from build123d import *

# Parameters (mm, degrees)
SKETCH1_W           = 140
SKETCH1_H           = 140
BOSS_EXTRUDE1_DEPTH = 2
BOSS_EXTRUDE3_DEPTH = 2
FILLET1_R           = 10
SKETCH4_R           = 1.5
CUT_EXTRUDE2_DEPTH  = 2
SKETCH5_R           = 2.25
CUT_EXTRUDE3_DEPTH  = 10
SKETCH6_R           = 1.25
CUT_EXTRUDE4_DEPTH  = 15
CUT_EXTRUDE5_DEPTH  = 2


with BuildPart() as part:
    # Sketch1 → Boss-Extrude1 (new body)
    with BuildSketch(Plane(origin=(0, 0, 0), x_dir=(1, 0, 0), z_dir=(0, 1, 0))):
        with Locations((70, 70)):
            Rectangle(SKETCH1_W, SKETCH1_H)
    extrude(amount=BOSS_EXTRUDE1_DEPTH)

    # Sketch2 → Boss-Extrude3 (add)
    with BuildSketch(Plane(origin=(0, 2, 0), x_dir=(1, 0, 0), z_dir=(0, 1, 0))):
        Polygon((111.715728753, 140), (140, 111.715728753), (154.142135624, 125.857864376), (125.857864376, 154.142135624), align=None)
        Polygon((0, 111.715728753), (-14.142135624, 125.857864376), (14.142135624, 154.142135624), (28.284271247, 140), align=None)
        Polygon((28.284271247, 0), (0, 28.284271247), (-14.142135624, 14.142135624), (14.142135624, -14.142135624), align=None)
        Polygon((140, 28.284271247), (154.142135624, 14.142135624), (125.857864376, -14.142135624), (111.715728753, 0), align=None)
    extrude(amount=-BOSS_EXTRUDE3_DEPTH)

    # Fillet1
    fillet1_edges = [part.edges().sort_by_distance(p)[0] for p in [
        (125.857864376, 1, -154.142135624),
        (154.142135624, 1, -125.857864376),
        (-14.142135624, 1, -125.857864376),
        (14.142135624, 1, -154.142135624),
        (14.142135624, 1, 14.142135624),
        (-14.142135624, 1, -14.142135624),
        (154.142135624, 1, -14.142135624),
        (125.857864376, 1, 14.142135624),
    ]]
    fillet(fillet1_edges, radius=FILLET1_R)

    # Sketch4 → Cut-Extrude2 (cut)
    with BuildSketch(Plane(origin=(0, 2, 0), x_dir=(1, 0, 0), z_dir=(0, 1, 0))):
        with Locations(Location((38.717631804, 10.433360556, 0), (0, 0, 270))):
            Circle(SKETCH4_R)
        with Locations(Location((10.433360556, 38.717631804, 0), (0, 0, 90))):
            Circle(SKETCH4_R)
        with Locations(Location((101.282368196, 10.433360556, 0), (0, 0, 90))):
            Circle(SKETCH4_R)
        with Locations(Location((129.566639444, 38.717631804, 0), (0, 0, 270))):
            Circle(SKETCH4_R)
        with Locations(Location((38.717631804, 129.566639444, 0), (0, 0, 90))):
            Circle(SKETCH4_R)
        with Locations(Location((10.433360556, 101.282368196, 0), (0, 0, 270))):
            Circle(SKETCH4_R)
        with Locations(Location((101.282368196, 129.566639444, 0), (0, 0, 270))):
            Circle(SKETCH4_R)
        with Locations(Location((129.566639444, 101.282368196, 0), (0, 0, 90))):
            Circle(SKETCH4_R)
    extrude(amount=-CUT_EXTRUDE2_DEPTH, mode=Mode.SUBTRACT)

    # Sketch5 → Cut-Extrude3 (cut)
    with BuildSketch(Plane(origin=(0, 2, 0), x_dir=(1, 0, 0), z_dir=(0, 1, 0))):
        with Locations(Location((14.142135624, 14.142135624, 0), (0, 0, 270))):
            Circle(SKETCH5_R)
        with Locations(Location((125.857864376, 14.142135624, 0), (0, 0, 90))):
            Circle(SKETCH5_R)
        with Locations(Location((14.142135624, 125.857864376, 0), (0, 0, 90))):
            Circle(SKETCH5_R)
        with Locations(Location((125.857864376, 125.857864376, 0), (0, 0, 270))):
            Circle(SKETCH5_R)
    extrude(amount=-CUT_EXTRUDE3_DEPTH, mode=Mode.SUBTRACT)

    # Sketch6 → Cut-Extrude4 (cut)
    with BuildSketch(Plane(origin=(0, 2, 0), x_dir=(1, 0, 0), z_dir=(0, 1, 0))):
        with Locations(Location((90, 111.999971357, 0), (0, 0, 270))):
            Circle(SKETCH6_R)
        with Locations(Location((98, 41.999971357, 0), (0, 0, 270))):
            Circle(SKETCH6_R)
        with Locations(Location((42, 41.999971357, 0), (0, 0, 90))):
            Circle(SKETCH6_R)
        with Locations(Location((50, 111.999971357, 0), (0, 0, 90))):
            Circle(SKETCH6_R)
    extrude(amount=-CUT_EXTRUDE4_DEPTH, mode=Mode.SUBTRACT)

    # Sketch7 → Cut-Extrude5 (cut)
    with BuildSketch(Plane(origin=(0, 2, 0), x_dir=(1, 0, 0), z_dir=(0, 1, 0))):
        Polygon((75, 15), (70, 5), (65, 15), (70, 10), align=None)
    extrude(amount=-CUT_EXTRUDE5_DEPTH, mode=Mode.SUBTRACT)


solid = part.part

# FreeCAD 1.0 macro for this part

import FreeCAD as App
import Part
import Sketcher
Q = App.Units.Quantity


def edges_at(feature, points):
    """Names of the edges that pass closest to the given points."""
    edges = feature.Shape.Edges
    near = lambda p: min(range(len(edges)), key=lambda i: edges[i].distToShape(Part.Vertex(*p))[0])
    return sorted({f"Edge{near(p) + 1}" for p in points})


def add_polygon(sketch, points):
    """Adds a closed chain of lines whose ends are joined by coincident constraints."""
    first, n = sketch.GeometryCount, len(points)
    for a, b in zip(points, points[1:] + points[:1]):
        sketch.addGeometry(Part.LineSegment(App.Vector(*a, 0), App.Vector(*b, 0)), False)
    for i in range(n):
        sketch.addConstraint(Sketcher.Constraint("Coincident", first + i, 2, first + (i + 1) % n, 1))

doc = App.newDocument("Part")
body = doc.addObject("PartDesign::Body", "Body")

sketch1 = doc.addObject("Sketcher::SketchObject", "Sketch")
body.addObject(sketch1)
sketch1.AttachmentSupport = (doc.XZ_Plane, [""])
sketch1.MapMode = "FlatFace"
add_polygon(sketch1, [(0, -140), (0, 0), (140, 0), (140, -140)])
sketch1.addConstraint(Sketcher.Constraint("Vertical", 0))
sketch1.addConstraint(Sketcher.Constraint("Horizontal", 1))
sketch1.addConstraint(Sketcher.Constraint("Vertical", 2))
sketch1.addConstraint(Sketcher.Constraint("Horizontal", 3))
sketch1.addConstraint(Sketcher.Constraint("Coincident", 0, 2, -1, 1))
sketch1.addConstraint(Sketcher.Constraint("Equal", 3, 0))
sketch1.addConstraint(Sketcher.Constraint("DistanceX", 1, 1, 1, 2, Q("140 mm")))
pad1 = doc.addObject("PartDesign::Pad", "Pad")
body.addObject(pad1)
pad1.Profile = sketch1
pad1.Length = 2
pad1.Reversed = True

sketch2 = doc.addObject("Sketcher::SketchObject", "Sketch001")
body.addObject(sketch2)
sketch2.AttachmentSupport = (doc.XZ_Plane, [""])
sketch2.MapMode = "FlatFace"
sketch2.AttachmentOffset = App.Placement(App.Vector(0, 0, -2), App.Rotation())
add_polygon(sketch2, [(112, -140), (140, -112), (154, -126), (126, -154)])
add_polygon(sketch2, [(-14, -126), (0, -112), (28, -140), (14, -154)])
add_polygon(sketch2, [(28, 0), (0, -28), (-14, -14), (14, 14)])
add_polygon(sketch2, [(154, -14), (140, -28), (112, 0), (126, 14)])
sketch2.addConstraint(Sketcher.Constraint("Symmetric", 9, 2, 10, 2, -1, 1))
sketch2.addConstraint(Sketcher.Constraint("PointOnObject", 4, 2, -2))
sketch2.addConstraint(Sketcher.Constraint("PointOnObject", 8, 2, -2))
sketch2.addConstraint(Sketcher.Constraint("PointOnObject", 11, 2, -1))
sketch2.addConstraint(Sketcher.Constraint("PointOnObject", 13, 2, -1))
sketch2.addConstraint(Sketcher.Constraint("Perpendicular", 0, 1))
sketch2.addConstraint(Sketcher.Constraint("Perpendicular", 1, 2))
sketch2.addConstraint(Sketcher.Constraint("Perpendicular", 2, 3))
sketch2.addConstraint(Sketcher.Constraint("Perpendicular", 3, 4))
sketch2.addConstraint(Sketcher.Constraint("Perpendicular", 4, 5))
sketch2.addConstraint(Sketcher.Constraint("Perpendicular", 5, 6))
sketch2.addConstraint(Sketcher.Constraint("Perpendicular", 6, 7))
sketch2.addConstraint(Sketcher.Constraint("Perpendicular", 7, 8))
sketch2.addConstraint(Sketcher.Constraint("Perpendicular", 8, 9))
sketch2.addConstraint(Sketcher.Constraint("Perpendicular", 9, 10))
sketch2.addConstraint(Sketcher.Constraint("Perpendicular", 10, 11))
sketch2.addConstraint(Sketcher.Constraint("Perpendicular", 11, 12))
sketch2.addConstraint(Sketcher.Constraint("Perpendicular", 12, 13))
sketch2.addConstraint(Sketcher.Constraint("Perpendicular", 13, 14))
sketch2.addConstraint(Sketcher.Constraint("Perpendicular", 14, 15))
sketch2.addConstraint(Sketcher.Constraint("Horizontal", 0, 2, 4, 2))
sketch2.addConstraint(Sketcher.Constraint("Horizontal", 3, 2, 5, 2))
sketch2.addConstraint(Sketcher.Constraint("Horizontal", 2, 2, 6, 2))
sketch2.addConstraint(Sketcher.Constraint("Horizontal", 8, 2, 12, 2))
sketch2.addConstraint(Sketcher.Constraint("Horizontal", 10, 2, 14, 2))
sketch2.addConstraint(Sketcher.Constraint("Vertical", 7, 2, 9, 2))
sketch2.addConstraint(Sketcher.Constraint("Vertical", 6, 2, 10, 2))
sketch2.addConstraint(Sketcher.Constraint("Vertical", 0, 2, 12, 2))
sketch2.addConstraint(Sketcher.Constraint("Distance", 0, Q("40 mm")))
sketch2.addConstraint(Sketcher.Constraint("DistanceX", -1, 1, 0, 2, Q("140 mm")))
sketch2.addConstraint(Sketcher.Constraint("DistanceY", 3, 2, -1, 1, Q("140 mm")))
pad2 = doc.addObject("PartDesign::Pad", "Pad001")
body.addObject(pad2)
pad2.Profile = sketch2
pad2.Length = 2
doc.recompute()

fillet = doc.addObject("PartDesign::Fillet", "Fillet")
body.addObject(fillet)
fillet.Base = (pad2, edges_at(pad2, [
    (125.858, 1, -154.142),
    (154.142, 1, -125.858),
    (-14.142, 1, -125.858),
    (14.142, 1, -154.142),
    (14.142, 1, 14.142),
    (-14.142, 1, -14.142),
    (154.142, 1, -14.142),
    (125.858, 1, 14.142),
]))
fillet.Radius = 10

sketch3 = doc.addObject("Sketcher::SketchObject", "Sketch002")
body.addObject(sketch3)
sketch3.AttachmentSupport = (doc.XZ_Plane, [""])
sketch3.MapMode = "FlatFace"
sketch3.AttachmentOffset = App.Placement(App.Vector(0, 0, -2), App.Rotation())
sketch3.addGeometry(Part.Circle(App.Vector(38.7, -10.4, 0), App.Vector(0, 0, 1), 1.5), False)
sketch3.addGeometry(Part.Circle(App.Vector(10.4, -38.7, 0), App.Vector(0, 0, 1), 1.5), False)
sketch3.addGeometry(Part.Circle(App.Vector(101.3, -10.4, 0), App.Vector(0, 0, 1), 1.5), False)
sketch3.addGeometry(Part.Circle(App.Vector(129.6, -38.7, 0), App.Vector(0, 0, 1), 1.5), False)
sketch3.addGeometry(Part.Circle(App.Vector(38.7, -129.6, 0), App.Vector(0, 0, 1), 1.5), False)
sketch3.addGeometry(Part.Circle(App.Vector(10.4, -101.3, 0), App.Vector(0, 0, 1), 1.5), False)
sketch3.addGeometry(Part.Circle(App.Vector(101.3, -129.6, 0), App.Vector(0, 0, 1), 1.5), False)
sketch3.addGeometry(Part.Circle(App.Vector(129.6, -101.3, 0), App.Vector(0, 0, 1), 1.5), False)
sketch3.addConstraint(Sketcher.Constraint("Equal", 0, 1))
sketch3.addConstraint(Sketcher.Constraint("Equal", 1, 2))
sketch3.addConstraint(Sketcher.Constraint("Equal", 2, 3))
sketch3.addConstraint(Sketcher.Constraint("Equal", 3, 4))
sketch3.addConstraint(Sketcher.Constraint("Equal", 4, 5))
sketch3.addConstraint(Sketcher.Constraint("Equal", 5, 6))
sketch3.addConstraint(Sketcher.Constraint("Equal", 6, 7))
sketch3.addConstraint(Sketcher.Constraint("Horizontal", 0, 3, 2, 3))
sketch3.addConstraint(Sketcher.Constraint("Horizontal", 1, 3, 3, 3))
sketch3.addConstraint(Sketcher.Constraint("Horizontal", 4, 3, 6, 3))
sketch3.addConstraint(Sketcher.Constraint("Horizontal", 5, 3, 7, 3))
sketch3.addConstraint(Sketcher.Constraint("Vertical", 0, 3, 4, 3))
sketch3.addConstraint(Sketcher.Constraint("Vertical", 1, 3, 5, 3))
sketch3.addConstraint(Sketcher.Constraint("Vertical", 2, 3, 6, 3))
sketch3.addConstraint(Sketcher.Constraint("Vertical", 3, 3, 7, 3))
sketch3.addConstraint(Sketcher.Constraint("Diameter", 0, Q("3 mm")))
sketch3.addConstraint(Sketcher.Constraint("DistanceX", -1, 1, 0, 3, Q("38.717632 mm")))
sketch3.addConstraint(Sketcher.Constraint("DistanceY", 0, 3, -1, 1, Q("10.433361 mm")))
sketch3.addConstraint(Sketcher.Constraint("DistanceX", -1, 1, 1, 3, Q("10.433361 mm")))
sketch3.addConstraint(Sketcher.Constraint("DistanceY", 1, 3, -1, 1, Q("38.717632 mm")))
sketch3.addConstraint(Sketcher.Constraint("DistanceX", -1, 1, 2, 3, Q("101.282368 mm")))
sketch3.addConstraint(Sketcher.Constraint("DistanceX", -1, 1, 3, 3, Q("129.566639 mm")))
sketch3.addConstraint(Sketcher.Constraint("DistanceY", 4, 3, -1, 1, Q("129.566639 mm")))
sketch3.addConstraint(Sketcher.Constraint("DistanceY", 5, 3, -1, 1, Q("101.282368 mm")))
pocket1 = doc.addObject("PartDesign::Pocket", "Pocket")
body.addObject(pocket1)
pocket1.Profile = sketch3
pocket1.Length = 2
pocket1.Reversed = True

sketch4 = doc.addObject("Sketcher::SketchObject", "Sketch003")
body.addObject(sketch4)
sketch4.AttachmentSupport = (doc.XZ_Plane, [""])
sketch4.MapMode = "FlatFace"
sketch4.AttachmentOffset = App.Placement(App.Vector(0, 0, -2), App.Rotation())
sketch4.addGeometry(Part.Circle(App.Vector(14.1, -14.1, 0), App.Vector(0, 0, 1), 2.2), False)
sketch4.addGeometry(Part.Circle(App.Vector(125.9, -14.1, 0), App.Vector(0, 0, 1), 2.2), False)
sketch4.addGeometry(Part.Circle(App.Vector(14.1, -125.9, 0), App.Vector(0, 0, 1), 2.2), False)
sketch4.addGeometry(Part.Circle(App.Vector(125.9, -125.9, 0), App.Vector(0, 0, 1), 2.2), False)
sketch4.addConstraint(Sketcher.Constraint("Equal", 0, 1))
sketch4.addConstraint(Sketcher.Constraint("Equal", 1, 2))
sketch4.addConstraint(Sketcher.Constraint("Equal", 2, 3))
sketch4.addConstraint(Sketcher.Constraint("Horizontal", 0, 3, 1, 3))
sketch4.addConstraint(Sketcher.Constraint("Horizontal", 2, 3, 3, 3))
sketch4.addConstraint(Sketcher.Constraint("Vertical", 0, 3, 2, 3))
sketch4.addConstraint(Sketcher.Constraint("Vertical", 1, 3, 3, 3))
sketch4.addConstraint(Sketcher.Constraint("Diameter", 0, Q("4.5 mm")))
sketch4.addConstraint(Sketcher.Constraint("DistanceX", 0, 3, 1, 3, Q("111.715729 mm")))
sketch4.addConstraint(Sketcher.Constraint("DistanceY", 2, 3, 0, 3, Q("111.715729 mm")))
sketch4.addConstraint(Sketcher.Constraint("DistanceX", -1, 1, 0, 3, Q("14.142136 mm")))
sketch4.addConstraint(Sketcher.Constraint("DistanceY", 0, 3, -1, 1, Q("14.142136 mm")))
pocket2 = doc.addObject("PartDesign::Pocket", "Pocket001")
body.addObject(pocket2)
pocket2.Profile = sketch4
pocket2.Length = 10
pocket2.Reversed = True

sketch5 = doc.addObject("Sketcher::SketchObject", "Sketch004")
body.addObject(sketch5)
sketch5.AttachmentSupport = (doc.XZ_Plane, [""])
sketch5.MapMode = "FlatFace"
sketch5.AttachmentOffset = App.Placement(App.Vector(0, 0, -2), App.Rotation())
sketch5.addGeometry(Part.Circle(App.Vector(90, -111.999971, 0), App.Vector(0, 0, 1), 1.25), False)
sketch5.addGeometry(Part.Circle(App.Vector(98, -41.999971, 0), App.Vector(0, 0, 1), 1.25), False)
sketch5.addGeometry(Part.Circle(App.Vector(42, -41.999971, 0), App.Vector(0, 0, 1), 1.25), False)
sketch5.addGeometry(Part.Circle(App.Vector(50, -111.999971, 0), App.Vector(0, 0, 1), 1.25), False)
sketch5.addConstraint(Sketcher.Constraint("Equal", 0, 1))
sketch5.addConstraint(Sketcher.Constraint("Equal", 1, 2))
sketch5.addConstraint(Sketcher.Constraint("Equal", 2, 3))
sketch5.addConstraint(Sketcher.Constraint("Horizontal", 1, 3, 2, 3))
sketch5.addConstraint(Sketcher.Constraint("Horizontal", 0, 3, 3, 3))
sketch5.addConstraint(Sketcher.Constraint("Diameter", 0, Q("2.5 mm")))
sketch5.addConstraint(Sketcher.Constraint("DistanceX", -1, 1, 0, 3, Q("90 mm")))
sketch5.addConstraint(Sketcher.Constraint("DistanceX", -1, 1, 1, 3, Q("98 mm")))
sketch5.addConstraint(Sketcher.Constraint("DistanceX", -1, 1, 2, 3, Q("42 mm")))
sketch5.addConstraint(Sketcher.Constraint("DistanceX", -1, 1, 3, 3, Q("50 mm")))
sketch5.addConstraint(Sketcher.Constraint("DistanceY", 0, 3, 1, 3, Q("70 mm")))
sketch5.addConstraint(Sketcher.Constraint("DistanceY", 0, 3, -1, 1, Q("111.999971 mm")))
pocket3 = doc.addObject("PartDesign::Pocket", "Pocket002")
body.addObject(pocket3)
pocket3.Profile = sketch5
pocket3.Length = 15
pocket3.Reversed = True

sketch6 = doc.addObject("Sketcher::SketchObject", "Sketch005")
body.addObject(sketch6)
sketch6.AttachmentSupport = (doc.XZ_Plane, [""])
sketch6.MapMode = "FlatFace"
sketch6.AttachmentOffset = App.Placement(App.Vector(0, 0, -2), App.Rotation())
add_polygon(sketch6, [(70, -5), (75, -15), (70, -10), (65, -15)])
sketch6.addConstraint(Sketcher.Constraint("Perpendicular", 1, 2))
sketch6.addConstraint(Sketcher.Constraint("Horizontal", 0, 2, 2, 2))
sketch6.addConstraint(Sketcher.Constraint("Vertical", 1, 2, 3, 2))
sketch6.addConstraint(Sketcher.Constraint("Equal", 1, 2))
sketch6.addConstraint(Sketcher.Constraint("DistanceX", -1, 1, 0, 2, Q("75 mm")))
sketch6.addConstraint(Sketcher.Constraint("DistanceY", 0, 2, -1, 1, Q("15 mm")))
sketch6.addConstraint(Sketcher.Constraint("DistanceX", -1, 1, 1, 2, Q("70 mm")))
sketch6.addConstraint(Sketcher.Constraint("DistanceY", 3, 2, -1, 1, Q("5 mm")))
pocket4 = doc.addObject("PartDesign::Pocket", "Pocket003")
body.addObject(pocket4)
pocket4.Profile = sketch6
pocket4.Length = 2
pocket4.Reversed = True

doc.recompute()
